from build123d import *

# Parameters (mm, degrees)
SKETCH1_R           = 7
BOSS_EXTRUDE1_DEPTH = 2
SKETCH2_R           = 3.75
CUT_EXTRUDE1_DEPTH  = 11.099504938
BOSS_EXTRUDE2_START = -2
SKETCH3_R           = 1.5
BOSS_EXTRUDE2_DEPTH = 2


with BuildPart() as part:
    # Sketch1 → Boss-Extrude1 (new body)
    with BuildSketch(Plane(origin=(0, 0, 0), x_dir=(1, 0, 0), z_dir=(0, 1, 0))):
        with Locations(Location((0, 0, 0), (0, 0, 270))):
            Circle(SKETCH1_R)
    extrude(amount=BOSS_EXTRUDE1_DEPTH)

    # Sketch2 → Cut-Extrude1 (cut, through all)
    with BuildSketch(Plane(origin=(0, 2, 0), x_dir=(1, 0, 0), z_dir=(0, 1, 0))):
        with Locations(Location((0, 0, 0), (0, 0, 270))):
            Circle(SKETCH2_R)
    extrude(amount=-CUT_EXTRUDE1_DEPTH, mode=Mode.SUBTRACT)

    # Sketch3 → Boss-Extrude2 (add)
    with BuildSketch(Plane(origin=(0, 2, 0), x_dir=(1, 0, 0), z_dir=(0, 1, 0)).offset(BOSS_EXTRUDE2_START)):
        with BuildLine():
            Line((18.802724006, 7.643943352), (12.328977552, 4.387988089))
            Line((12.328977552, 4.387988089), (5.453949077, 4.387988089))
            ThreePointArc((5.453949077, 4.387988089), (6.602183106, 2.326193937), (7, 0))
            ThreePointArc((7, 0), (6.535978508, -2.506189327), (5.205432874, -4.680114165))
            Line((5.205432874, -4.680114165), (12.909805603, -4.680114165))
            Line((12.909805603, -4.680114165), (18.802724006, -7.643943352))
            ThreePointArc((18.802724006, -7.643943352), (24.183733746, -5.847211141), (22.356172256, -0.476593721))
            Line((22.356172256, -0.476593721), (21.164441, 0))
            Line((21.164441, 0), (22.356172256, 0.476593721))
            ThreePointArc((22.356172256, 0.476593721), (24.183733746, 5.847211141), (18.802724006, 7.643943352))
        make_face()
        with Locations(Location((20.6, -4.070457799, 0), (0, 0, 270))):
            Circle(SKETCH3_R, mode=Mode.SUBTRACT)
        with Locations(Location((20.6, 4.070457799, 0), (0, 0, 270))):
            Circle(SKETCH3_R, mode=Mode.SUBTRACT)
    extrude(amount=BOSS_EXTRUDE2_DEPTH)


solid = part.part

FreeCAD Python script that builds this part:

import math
import FreeCAD as App
import Part
import Sketcher
Q = App.Units.Quantity

doc = App.newDocument("Part")
body = doc.addObject("PartDesign::Body", "Body")

# Sketch on XZ plane
sketch1 = body.newObject("Sketcher::SketchObject", "Sketch")
sketch1.AttachmentSupport = (doc.getObject("XZ_Plane"), [""])
sketch1.MapMode = "FlatFace"
sketch1.addGeometry(Part.Circle(App.Vector(0, 0, 0), App.Vector(0, 0, 1), 7), False)
sketch1.addConstraint(Sketcher.Constraint("Coincident", 0, 3, -1, 1))
sketch1.addConstraint(Sketcher.Constraint("Diameter", 0, 14.0))
pad1 = body.newObject("PartDesign::Pad", "Pad")
pad1.Profile = sketch1
pad1.Length = 2
pad1.Reversed = True

# Sketch on XZ plane
sketch2 = body.newObject("Sketcher::SketchObject", "Sketch001")
sketch2.AttachmentSupport = (doc.getObject("XZ_Plane"), [""])
sketch2.MapMode = "FlatFace"
sketch2.AttachmentOffset = App.Placement(App.Vector(0, 0, -2), App.Rotation())
sketch2.addGeometry(Part.Circle(App.Vector(0, 0, 0), App.Vector(0, 0, 1), 3.75), False)
sketch2.addConstraint(Sketcher.Constraint("Coincident", 0, 3, -1, 1))
sketch2.addConstraint(Sketcher.Constraint("Diameter", 0, 7.5))
pocket1 = body.newObject("PartDesign::Pocket", "Pocket")
pocket1.Profile = sketch2
pocket1.Type = "ThroughAll"
pocket1.Reversed = True

# Sketch on XZ plane
sketch3 = body.newObject("Sketcher::SketchObject", "Sketch002")
sketch3.AttachmentSupport = (doc.getObject("XZ_Plane"), [""])
sketch3.MapMode = "FlatFace"
sketch3.addGeometry(Part.LineSegment(App.Vector(18.802724, -7.643943, 0), App.Vector(12.328978, -4.387988, 0)), False)
sketch3.addGeometry(Part.LineSegment(App.Vector(12.328978, -4.387988, 0), App.Vector(5.453949, -4.387988, 0)), False)
sketch3.addGeometry(Part.ArcOfCircle(Part.Circle(App.Vector(0, 0, 0), App.Vector(0, 0, 1), 7), math.radians(-38.818502), math.radians(0)), False)
sketch3.addGeometry(Part.ArcOfCircle(Part.Circle(App.Vector(0, 0, 0), App.Vector(0, 0, 1), 7), math.radians(0), math.radians(41.958159)), False)
sketch3.addGeometry(Part.LineSegment(App.Vector(5.205433, 4.680114, 0), App.Vector(12.909806, 4.680114, 0)), False)
sketch3.addGeometry(Part.LineSegment(App.Vector(12.909806, 4.680114, 0), App.Vector(18.802724, 7.643943, 0)), False)
sketch3.addGeometry(Part.ArcOfCircle(Part.Circle(App.Vector(20.6, 4.070458, 0), App.Vector(0, 0, 1), 4), math.radians(-63.957159), math.radians(116.7)), False)
sketch3.addGeometry(Part.LineSegment(App.Vector(22.356172, 0.476594, 0), App.Vector(21.164441, 0, 0)), False)
sketch3.addGeometry(Part.LineSegment(App.Vector(21.164441, 0, 0), App.Vector(22.356172, -0.476594, 0)), False)
sketch3.addGeometry(Part.ArcOfCircle(Part.Circle(App.Vector(20.6, -4.070458, 0), App.Vector(0, 0, 1), 4), math.radians(-116.7), math.radians(63.957159)), False)
sketch3.addGeometry(Part.Circle(App.Vector(20.6, 4.070458, 0), App.Vector(0, 0, 1), 1.5), False)
sketch3.addGeometry(Part.Circle(App.Vector(20.6, -4.070458, 0), App.Vector(0, 0, 1), 1.5), False)
sketch3.addConstraint(Sketcher.Constraint("Coincident", 0, 2, 1, 1))
sketch3.addConstraint(Sketcher.Constraint("Coincident", 1, 2, 2, 1))
sketch3.addConstraint(Sketcher.Constraint("Tangent", 2, 2, 3, 1))
sketch3.addConstraint(Sketcher.Constraint("Coincident", 3, 2, 4, 1))
sketch3.addConstraint(Sketcher.Constraint("Coincident", 4, 2, 5, 1))
sketch3.addConstraint(Sketcher.Constraint("Tangent", 5, 2, 6, 2))
sketch3.addConstraint(Sketcher.Constraint("Coincident", 6, 1, 7, 1))
sketch3.addConstraint(Sketcher.Constraint("Coincident", 7, 2, 8, 1))
sketch3.addConstraint(Sketcher.Constraint("Coincident", 8, 2, 9, 2))
sketch3.addConstraint(Sketcher.Constraint("Tangent", 9, 1, 0, 1))
sketch3.addConstraint(Sketcher.Constraint("Horizontal", 1))
sketch3.addConstraint(Sketcher.Constraint("Horizontal", 4))
sketch3.addConstraint(Sketcher.Constraint("Coincident", 2, 3, -1, 1))
sketch3.addConstraint(Sketcher.Constraint("Coincident", 10, 3, 6, 3))
sketch3.addConstraint(Sketcher.Constraint("Coincident", 11, 3, 9, 3))
sketch3.addConstraint(Sketcher.Constraint("Equal", 2, 3))
sketch3.addConstraint(Sketcher.Constraint("Equal", 6, 9))
sketch3.addConstraint(Sketcher.Constraint("Equal", 10, 11))
sketch3.addConstraint(Sketcher.Constraint("Symmetric", 6, 3, 9, 3, -1))
sketch3.addConstraint(Sketcher.Constraint("PointOnObject", 2, 2, -1))
sketch3.addConstraint(Sketcher.Constraint("PointOnObject", 7, 2, -1))
sketch3.addConstraint(Sketcher.Constraint("Vertical", 6, 1, 8, 2))
sketch3.addConstraint(Sketcher.Constraint("Vertical", 5, 2, 9, 1))
sketch3.addConstraint(Sketcher.Constraint("Diameter", 10, 3.0))
sketch3.addConstraint(Sketcher.Constraint("Radius", 2, 7.0))
sketch3.addConstraint(Sketcher.Constraint("Radius", 6, 4.0))
sketch3.addConstraint(Sketcher.Constraint("Angle", 0, Q("153.3 deg")))
sketch3.addConstraint(Sketcher.Constraint("DistanceX", -1, 1, 6, 3, 20.6))
sketch3.addConstraint(Sketcher.Constraint("DistanceX", 1, 2, 1, 1, 6.875028))
sketch3.addConstraint(Sketcher.Constraint("DistanceY", 9, 3, 5, 2, 11.714401))
sketch3.addConstraint(Sketcher.Constraint("Distance", 5, 6.596269))
sketch3.addConstraint(Sketcher.Constraint("DistanceX", -1, 1, 7, 2, 21.164441))
sketch3.addConstraint(Sketcher.Constraint("DistanceY", 9, 3, 6, 1, 4.547052))
pad2 = body.newObject("PartDesign::Pad", "Pad001")
pad2.Profile = sketch3
pad2.Length = 2
pad2.Reversed = True

doc.recompute()
